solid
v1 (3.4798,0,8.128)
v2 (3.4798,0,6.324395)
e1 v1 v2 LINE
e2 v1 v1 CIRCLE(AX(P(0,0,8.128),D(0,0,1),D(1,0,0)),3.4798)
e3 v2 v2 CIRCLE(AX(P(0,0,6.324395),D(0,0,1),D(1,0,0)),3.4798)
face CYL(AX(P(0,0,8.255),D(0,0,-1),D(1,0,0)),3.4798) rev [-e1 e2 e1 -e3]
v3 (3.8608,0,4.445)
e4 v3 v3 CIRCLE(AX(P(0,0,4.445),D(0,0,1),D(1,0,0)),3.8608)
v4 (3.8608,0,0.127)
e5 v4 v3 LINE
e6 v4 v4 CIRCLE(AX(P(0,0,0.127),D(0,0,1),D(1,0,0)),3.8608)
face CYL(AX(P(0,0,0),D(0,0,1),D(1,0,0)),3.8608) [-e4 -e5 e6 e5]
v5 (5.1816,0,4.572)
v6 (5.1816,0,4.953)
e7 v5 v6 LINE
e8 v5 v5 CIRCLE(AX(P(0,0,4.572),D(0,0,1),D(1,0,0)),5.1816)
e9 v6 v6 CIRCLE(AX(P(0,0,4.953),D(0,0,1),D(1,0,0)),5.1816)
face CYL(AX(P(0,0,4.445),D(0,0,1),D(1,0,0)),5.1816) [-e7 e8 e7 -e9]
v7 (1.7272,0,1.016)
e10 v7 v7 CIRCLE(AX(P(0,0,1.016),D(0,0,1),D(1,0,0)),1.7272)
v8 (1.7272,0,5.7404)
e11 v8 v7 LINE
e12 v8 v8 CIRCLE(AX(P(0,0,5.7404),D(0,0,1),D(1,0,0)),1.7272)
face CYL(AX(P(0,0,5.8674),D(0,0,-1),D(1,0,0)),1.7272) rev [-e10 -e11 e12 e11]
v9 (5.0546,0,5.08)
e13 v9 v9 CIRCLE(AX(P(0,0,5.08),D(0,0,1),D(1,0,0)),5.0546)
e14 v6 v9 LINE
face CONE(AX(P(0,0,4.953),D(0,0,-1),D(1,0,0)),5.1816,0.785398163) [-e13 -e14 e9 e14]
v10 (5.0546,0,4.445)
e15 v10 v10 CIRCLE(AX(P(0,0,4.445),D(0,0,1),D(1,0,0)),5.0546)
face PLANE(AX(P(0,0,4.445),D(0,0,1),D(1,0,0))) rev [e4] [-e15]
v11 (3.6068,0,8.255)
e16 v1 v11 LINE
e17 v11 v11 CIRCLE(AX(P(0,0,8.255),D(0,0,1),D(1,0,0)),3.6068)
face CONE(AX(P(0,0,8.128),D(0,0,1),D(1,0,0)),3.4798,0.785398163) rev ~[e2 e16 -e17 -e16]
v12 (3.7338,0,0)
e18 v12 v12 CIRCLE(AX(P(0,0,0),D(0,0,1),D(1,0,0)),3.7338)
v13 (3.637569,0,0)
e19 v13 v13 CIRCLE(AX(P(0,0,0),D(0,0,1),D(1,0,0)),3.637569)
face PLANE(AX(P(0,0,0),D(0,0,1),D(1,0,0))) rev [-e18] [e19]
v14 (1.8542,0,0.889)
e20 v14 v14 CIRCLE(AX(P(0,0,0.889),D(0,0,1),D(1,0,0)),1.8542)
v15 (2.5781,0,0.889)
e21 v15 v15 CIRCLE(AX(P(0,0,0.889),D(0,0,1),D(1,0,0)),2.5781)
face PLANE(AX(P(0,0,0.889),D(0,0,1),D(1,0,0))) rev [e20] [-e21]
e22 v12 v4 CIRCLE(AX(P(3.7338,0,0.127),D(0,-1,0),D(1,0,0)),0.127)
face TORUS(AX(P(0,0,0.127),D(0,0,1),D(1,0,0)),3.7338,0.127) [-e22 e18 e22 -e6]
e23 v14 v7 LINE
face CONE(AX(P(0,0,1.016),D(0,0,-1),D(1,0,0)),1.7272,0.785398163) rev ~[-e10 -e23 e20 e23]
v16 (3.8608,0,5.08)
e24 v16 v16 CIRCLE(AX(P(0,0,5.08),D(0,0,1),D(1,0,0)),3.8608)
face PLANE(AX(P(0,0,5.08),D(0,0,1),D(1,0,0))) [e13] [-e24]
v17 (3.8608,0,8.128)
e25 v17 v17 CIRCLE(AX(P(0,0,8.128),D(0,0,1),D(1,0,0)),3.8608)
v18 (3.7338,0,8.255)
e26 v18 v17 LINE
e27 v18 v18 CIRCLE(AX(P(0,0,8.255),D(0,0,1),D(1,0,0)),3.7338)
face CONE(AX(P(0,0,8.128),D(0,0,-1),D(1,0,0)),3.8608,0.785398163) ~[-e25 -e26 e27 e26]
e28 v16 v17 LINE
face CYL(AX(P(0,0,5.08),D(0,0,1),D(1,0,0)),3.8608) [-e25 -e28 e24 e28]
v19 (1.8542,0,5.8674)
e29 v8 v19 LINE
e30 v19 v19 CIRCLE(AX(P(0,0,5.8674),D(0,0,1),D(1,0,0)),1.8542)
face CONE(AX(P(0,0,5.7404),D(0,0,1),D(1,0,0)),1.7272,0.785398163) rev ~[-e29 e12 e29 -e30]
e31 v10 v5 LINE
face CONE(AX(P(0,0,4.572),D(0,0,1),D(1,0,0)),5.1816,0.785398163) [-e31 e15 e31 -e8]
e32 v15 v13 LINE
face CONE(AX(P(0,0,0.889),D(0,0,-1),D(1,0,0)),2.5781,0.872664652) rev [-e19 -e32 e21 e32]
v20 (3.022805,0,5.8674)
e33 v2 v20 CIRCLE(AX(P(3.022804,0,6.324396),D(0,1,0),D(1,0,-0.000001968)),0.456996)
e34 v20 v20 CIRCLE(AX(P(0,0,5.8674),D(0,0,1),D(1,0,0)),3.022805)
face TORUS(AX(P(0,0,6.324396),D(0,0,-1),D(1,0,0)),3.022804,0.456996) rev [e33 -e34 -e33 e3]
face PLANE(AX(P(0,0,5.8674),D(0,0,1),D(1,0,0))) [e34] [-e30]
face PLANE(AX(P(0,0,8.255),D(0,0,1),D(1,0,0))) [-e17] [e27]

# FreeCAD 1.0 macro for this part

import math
import FreeCAD as App
import Part
import Sketcher
from FreeCAD import Vector
Q = App.Units.Quantity


def edges_at(feature, points):
    """Names of the edges that pass closest to the given points."""
    edges = feature.Shape.Edges
    near = lambda p: min(range(len(edges)), key=lambda i: edges[i].distToShape(Part.Vertex(*p))[0])
    return sorted({f"Edge{near(p) + 1}" for p in points})

doc = App.newDocument("Part")
params = doc.addObject("Spreadsheet::Sheet", "Params")
for row, (alias, value) in enumerate([
    ("sketch1_width", "0.015 in"),
    ("sketch1_width2", "0.052 in"),
    ("sketch1_height", "0.196 in"),
    ("sketch1_height2", "0.175 in"),
    ("sketch1_height3", "0.125 in"),
    ("revolution_angle", "360 deg"),
    ("fillet_radius", "0.005 in"),
    ("chamfer_size", "0.005 in"),
    ("chamfer2_size", "0.005 in"),
], start=1):
    params.set(f"A{row}", alias)
    params.set(f"B{row}", "=" + value)
    params.setAlias(f"B{row}", alias)

body = doc.addObject("PartDesign::Body", "Body")

# Sketch on XZ plane
sketch1 = doc.addObject("Sketcher::SketchObject", "Sketch")
body.addObject(sketch1)
sketch1.AttachmentSupport = (doc.XZ_Plane, [""])
sketch1.MapMode = "FlatFace"
sketch1.addGeometry(Part.LineSegment(Vector(3.86, 8.26, 0), Vector(3.48, 8.26, 0)), False)
sketch1.addGeometry(Part.LineSegment(Vector(3.48, 8.26, 0), Vector(3.48, 6.32, 0)), False)
sketch1.addGeometry(Part.ArcOfCircle(Part.Circle(Vector(3.02, 6.32, 0), Vector(0, 0, 1), 0.46), math.radians(-90), math.radians(0)), False)
sketch1.addGeometry(Part.LineSegment(Vector(3.02, 5.87, 0), Vector(1.73, 5.87, 0)), False)
sketch1.addGeometry(Part.LineSegment(Vector(1.73, 5.87, 0), Vector(1.73, 0.89, 0)), False)
sketch1.addGeometry(Part.LineSegment(Vector(1.73, 0.89, 0), Vector(2.58, 0.89, 0)), False)
sketch1.addGeometry(Part.LineSegment(Vector(2.58, 0.89, 0), Vector(3.64, 0, 0)), False)
sketch1.addGeometry(Part.LineSegment(Vector(3.64, 0, 0), Vector(3.86, 0, 0)), False)
sketch1.addGeometry(Part.LineSegment(Vector(3.86, 0, 0), Vector(3.86, 4.45, 0)), False)
sketch1.addGeometry(Part.LineSegment(Vector(3.86, 4.45, 0), Vector(5.18, 4.45, 0)), False)
sketch1.addGeometry(Part.LineSegment(Vector(5.18, 4.45, 0), Vector(5.18, 5.08, 0)), False)
sketch1.addGeometry(Part.LineSegment(Vector(5.18, 5.08, 0), Vector(3.86, 5.08, 0)), False)
sketch1.addGeometry(Part.LineSegment(Vector(3.86, 5.08, 0), Vector(3.86, 8.26, 0)), False)
sketch1.addConstraint(Sketcher.Constraint("Coincident", 0, 2, 1, 1))
sketch1.addConstraint(Sketcher.Constraint("Tangent", 1, 2, 2, 2))
sketch1.addConstraint(Sketcher.Constraint("Tangent", 2, 1, 3, 1))
sketch1.addConstraint(Sketcher.Constraint("Coincident", 3, 2, 4, 1))
sketch1.addConstraint(Sketcher.Constraint("Coincident", 4, 2, 5, 1))
sketch1.addConstraint(Sketcher.Constraint("Coincident", 5, 2, 6, 1))
sketch1.addConstraint(Sketcher.Constraint("Coincident", 6, 2, 7, 1))
sketch1.addConstraint(Sketcher.Constraint("Coincident", 7, 2, 8, 1))
sketch1.addConstraint(Sketcher.Constraint("Coincident", 8, 2, 9, 1))
sketch1.addConstraint(Sketcher.Constraint("Coincident", 9, 2, 10, 1))
sketch1.addConstraint(Sketcher.Constraint("Coincident", 10, 2, 11, 1))
sketch1.addConstraint(Sketcher.Constraint("Coincident", 11, 2, 12, 1))
sketch1.addConstraint(Sketcher.Constraint("Coincident", 12, 2, 0, 1))
sketch1.addConstraint(Sketcher.Constraint("Horizontal", 0))
sketch1.addConstraint(Sketcher.Constraint("Vertical", 1))
sketch1.addConstraint(Sketcher.Constraint("Horizontal", 3))
sketch1.addConstraint(Sketcher.Constraint("Vertical", 4))
sketch1.addConstraint(Sketcher.Constraint("Horizontal", 5))
sketch1.addConstraint(Sketcher.Constraint("Horizontal", 7))
sketch1.addConstraint(Sketcher.Constraint("Vertical", 8))
sketch1.addConstraint(Sketcher.Constraint("Horizontal", 9))
sketch1.addConstraint(Sketcher.Constraint("Vertical", 10))
sketch1.addConstraint(Sketcher.Constraint("Horizontal", 11))
sketch1.addConstraint(Sketcher.Constraint("Vertical", 12))
sketch1.addConstraint(Sketcher.Constraint("PointOnObject", 6, 2, -1))
sketch1.addConstraint(Sketcher.Constraint("Vertical", 8, 2, 11, 2))
sketch1.addConstraint(Sketcher.Constraint("Angle", 6, Q("-39.999999 deg")))
sketch1.addConstraint(Sketcher.Constraint("DistanceY", -1, 1, 10, 2, Q("0.2 in")))
sketch1.addConstraint(Sketcher.Constraint("DistanceX", 0, 2, 0, 1, Q("0.015 in")))
sketch1.addConstraint(Sketcher.Constraint("DistanceX", 9, 1, 9, 2, Q("0.052 in")))
sketch1.addConstraint(Sketcher.Constraint("DistanceY", 4, 2, 4, 1, Q("0.196 in")))
sketch1.addConstraint(Sketcher.Constraint("DistanceY", 8, 1, 8, 2, Q("0.175 in")))
sketch1.addConstraint(Sketcher.Constraint("DistanceY", 12, 1, 12, 2, Q("0.125 in")))
sketch1.addConstraint(Sketcher.Constraint("DistanceY", 4, 2, 0, 2, Q("0.29 in")))
sketch1.addConstraint(Sketcher.Constraint("DistanceX", 5, 1, 5, 2, Q("0.0335 in")))
sketch1.addConstraint(Sketcher.Constraint("DistanceX", -1, 1, 0, 2, Q("0.137 in")))
sketch1.addConstraint(Sketcher.Constraint("DistanceX", -1, 1, 3, 2, Q("0.068 in")))
sketch1.addConstraint(Sketcher.Constraint("Radius", 2, 0.456996))
sketch1.setExpression("Constraints[28]", "Params.sketch1_width")
sketch1.setExpression("Constraints[29]", "Params.sketch1_width2")
sketch1.setExpression("Constraints[30]", "Params.sketch1_height")
sketch1.setExpression("Constraints[31]", "Params.sketch1_height2")
sketch1.setExpression("Constraints[32]", "Params.sketch1_height3")
revolution = doc.addObject("PartDesign::Revolution", "Revolution")
body.addObject(revolution)
revolution.Profile = sketch1
revolution.ReferenceAxis = (sketch1, ["V_Axis"])
revolution.setExpression("Angle", "Params.revolution_angle")
doc.recompute()

fillet = doc.addObject("PartDesign::Fillet", "Fillet")
body.addObject(fillet)
fillet.Base = (revolution, edges_at(revolution, [(-3.861, 0, 0)]))
fillet.setExpression("Radius", "Params.fillet_radius")
doc.recompute()

chamfer = doc.addObject("PartDesign::Chamfer", "Chamfer")
body.addObject(chamfer)
chamfer.Base = (fillet, edges_at(fillet, [(-1.727, 0, 0.889)]))
chamfer.setExpression("Size", "Params.chamfer_size")
doc.recompute()

chamfer2 = doc.addObject("PartDesign::Chamfer", "Chamfer001")
body.addObject(chamfer2)
chamfer2.Base = (chamfer, edges_at(chamfer, [
    (-1.727, 0, 5.867),
    (-3.48, 0, 8.255),
    (-3.861, 0, 8.255),
    (-5.182, 0, 5.08),
    (-5.182, 0, 4.445),
]))
chamfer2.setExpression("Size", "Params.chamfer2_size")

doc.recompute()
